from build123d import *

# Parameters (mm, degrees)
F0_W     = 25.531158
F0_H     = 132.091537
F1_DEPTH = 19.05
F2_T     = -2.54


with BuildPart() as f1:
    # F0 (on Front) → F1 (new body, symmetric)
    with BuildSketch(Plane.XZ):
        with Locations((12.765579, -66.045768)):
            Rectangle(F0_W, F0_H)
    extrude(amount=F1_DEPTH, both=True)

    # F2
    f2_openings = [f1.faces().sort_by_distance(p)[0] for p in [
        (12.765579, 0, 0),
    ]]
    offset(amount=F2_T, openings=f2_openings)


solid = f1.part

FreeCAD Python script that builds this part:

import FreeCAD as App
import Part
import Sketcher

V = App.Vector
Q = App.Units.Quantity


def faces_at(feature, points):
    """Names of the faces that lie closest to the given points."""
    faces = feature.Shape.Faces
    near = lambda p: min(range(len(faces)), key=lambda i: faces[i].distToShape(Part.Vertex(*p))[0])
    return sorted({f"Face{near(p) + 1}" for p in points})


def add_polygon(sketch, points):
    """Adds a closed chain of lines whose ends are joined by coincident constraints."""
    first, n = sketch.GeometryCount, len(points)
    for a, b in zip(points, points[1:] + points[:1]):
        sketch.addGeometry(Part.LineSegment(App.Vector(*a, 0), App.Vector(*b, 0)), False)
    for i in range(n):
        sketch.addConstraint(Sketcher.Constraint("Coincident", first + i, 2, first + (i + 1) % n, 1))

doc = App.newDocument("Part")
body = doc.addObject("PartDesign::Body", "Body")

# Sketch on XZ plane
sketch1 = doc.addObject("Sketcher::SketchObject", "Sketch")
body.addObject(sketch1)
sketch1.AttachmentSupport = (doc.XZ_Plane, [""])
sketch1.MapMode = "FlatFace"
add_polygon(sketch1, [(0, 0), (0, -132), (26, -132), (26, 0)])  # lines 0-3
sketch1.addConstraint(Sketcher.Constraint("Vertical", 0))
sketch1.addConstraint(Sketcher.Constraint("Horizontal", 1))
sketch1.addConstraint(Sketcher.Constraint("Vertical", 2))
sketch1.addConstraint(Sketcher.Constraint("Horizontal", 3))
sketch1.addConstraint(Sketcher.Constraint("Coincident", 3, 2, -1, 1))
sketch1.addConstraint(Sketcher.Constraint("DistanceX", 1, 1, 1, 2, Q("25.531158 mm")))
sketch1.addConstraint(Sketcher.Constraint("DistanceY", 0, 2, 0, 1, Q("132.091537 mm")))
pad1 = doc.addObject("PartDesign::Pad", "Pad")
body.addObject(pad1)
pad1.Profile = sketch1
pad1.Length = Q("1.5 in")
pad1.Midplane = True
doc.recompute()

thickness = doc.addObject("PartDesign::Thickness", "Thickness")
body.addObject(thickness)
thickness.Base = (pad1, faces_at(pad1, [(12.766, 0, 0)]))
thickness.Value = Q("0.1 in")
thickness.Reversed = True
thickness.Join = "Arc"

doc.recompute()
